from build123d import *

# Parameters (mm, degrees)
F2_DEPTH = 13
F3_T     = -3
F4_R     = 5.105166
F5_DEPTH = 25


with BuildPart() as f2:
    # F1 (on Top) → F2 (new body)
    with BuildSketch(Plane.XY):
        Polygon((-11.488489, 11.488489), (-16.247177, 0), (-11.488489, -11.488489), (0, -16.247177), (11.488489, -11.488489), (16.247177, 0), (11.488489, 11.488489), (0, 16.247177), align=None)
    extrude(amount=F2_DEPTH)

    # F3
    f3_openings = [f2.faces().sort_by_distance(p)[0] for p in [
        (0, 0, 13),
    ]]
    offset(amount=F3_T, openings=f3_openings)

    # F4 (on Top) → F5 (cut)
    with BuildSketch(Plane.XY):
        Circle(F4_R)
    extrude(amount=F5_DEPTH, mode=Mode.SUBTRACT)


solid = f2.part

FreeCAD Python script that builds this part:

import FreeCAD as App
import Part
import Sketcher
Q = App.Units.Quantity


def faces_at(feature, points):
    """Names of the faces that lie closest to the given points."""
    faces = feature.Shape.Faces
    near = lambda p: min(range(len(faces)), key=lambda i: faces[i].distToShape(Part.Vertex(*p))[0])
    return sorted({f"Face{near(p) + 1}" for p in points})

doc = App.newDocument("Part")
body = doc.addObject("PartDesign::Body", "Body")

sketch1 = doc.addObject("Sketcher::SketchObject", "Sketch")
body.addObject(sketch1)
sketch1.AttachmentSupport = (doc.XY_Plane, [""])
sketch1.MapMode = "FlatFace"
sketch1.addGeometry([
    Part.LineSegment(App.Vector(-11.488489, 11.488489, 0), App.Vector(-16.247177, 0, 0)),
    Part.LineSegment(App.Vector(-16.247177, 0, 0), App.Vector(-11.488489, -11.488489, 0)),
    Part.LineSegment(App.Vector(-11.488489, -11.488489, 0), App.Vector(0, -16.247177, 0)),
    Part.LineSegment(App.Vector(0, -16.247177, 0), App.Vector(11.488489, -11.488489, 0)),
    Part.LineSegment(App.Vector(11.488489, -11.488489, 0), App.Vector(16.247177, 0, 0)),
    Part.LineSegment(App.Vector(16.247177, 0, 0), App.Vector(11.488489, 11.488489, 0)),
    Part.LineSegment(App.Vector(11.488489, 11.488489, 0), App.Vector(0, 16.247177, 0)),
    Part.LineSegment(App.Vector(0, 16.247177, 0), App.Vector(-11.488489, 11.488489, 0)),
], False)
sketch1.addConstraint([
    Sketcher.Constraint("Coincident", 0, 2, 1, 1),
    Sketcher.Constraint("Coincident", 1, 2, 2, 1),
    Sketcher.Constraint("Coincident", 2, 2, 3, 1),
    Sketcher.Constraint("Coincident", 3, 2, 4, 1),
    Sketcher.Constraint("Coincident", 4, 2, 5, 1),
    Sketcher.Constraint("Coincident", 5, 2, 6, 1),
    Sketcher.Constraint("Coincident", 6, 2, 7, 1),
    Sketcher.Constraint("Coincident", 7, 2, 0, 1),
    Sketcher.Constraint("Symmetric", 0, 2, 4, 2, -1, 1),
    Sketcher.Constraint("Symmetric", 1, 2, 5, 2, -1, 1),
    Sketcher.Constraint("Symmetric", 2, 2, 6, 2, -1, 1),
    Sketcher.Constraint("Symmetric", 3, 2, 7, 2, -1, 1),
    Sketcher.Constraint("Symmetric", 1, 2, 3, 2, -2),
    Sketcher.Constraint("PointOnObject", 0, 2, -1),
    Sketcher.Constraint("PointOnObject", 2, 2, -2),
    Sketcher.Constraint("Perpendicular", 0, 2),
    Sketcher.Constraint("Equal", 1, 2),
    Sketcher.Constraint("Angle", 0, Q("-112.5 deg")),
    Sketcher.Constraint("Distance", 0, Q("12.435051 mm")),
])
pad1 = doc.addObject("PartDesign::Pad", "Pad")
body.addObject(pad1)
pad1.Profile = sketch1
pad1.Length = 13
doc.recompute()

thickness = doc.addObject("PartDesign::Thickness", "Thickness")
body.addObject(thickness)
thickness.Base = (pad1, faces_at(pad1, [(0, 0, 13)]))
thickness.Value = 3
thickness.Reversed = True
thickness.Join = "Arc"

sketch2 = doc.addObject("Sketcher::SketchObject", "Sketch001")
body.addObject(sketch2)
sketch2.AttachmentSupport = (doc.XY_Plane, [""])
sketch2.MapMode = "FlatFace"
sketch2.addGeometry(Part.Circle(App.Vector(0, 0, 0), App.Vector(0, 0, 1), 5.105166), False)
sketch2.addConstraint([
    Sketcher.Constraint("Coincident", 0, 3, -1, 1),
    Sketcher.Constraint("Diameter", 0, Q("10.210332 mm")),
])
pocket1 = doc.addObject("PartDesign::Pocket", "Pocket")
body.addObject(pocket1)
pocket1.Profile = sketch2
pocket1.Length = 25
pocket1.Reversed = True

doc.recompute()
